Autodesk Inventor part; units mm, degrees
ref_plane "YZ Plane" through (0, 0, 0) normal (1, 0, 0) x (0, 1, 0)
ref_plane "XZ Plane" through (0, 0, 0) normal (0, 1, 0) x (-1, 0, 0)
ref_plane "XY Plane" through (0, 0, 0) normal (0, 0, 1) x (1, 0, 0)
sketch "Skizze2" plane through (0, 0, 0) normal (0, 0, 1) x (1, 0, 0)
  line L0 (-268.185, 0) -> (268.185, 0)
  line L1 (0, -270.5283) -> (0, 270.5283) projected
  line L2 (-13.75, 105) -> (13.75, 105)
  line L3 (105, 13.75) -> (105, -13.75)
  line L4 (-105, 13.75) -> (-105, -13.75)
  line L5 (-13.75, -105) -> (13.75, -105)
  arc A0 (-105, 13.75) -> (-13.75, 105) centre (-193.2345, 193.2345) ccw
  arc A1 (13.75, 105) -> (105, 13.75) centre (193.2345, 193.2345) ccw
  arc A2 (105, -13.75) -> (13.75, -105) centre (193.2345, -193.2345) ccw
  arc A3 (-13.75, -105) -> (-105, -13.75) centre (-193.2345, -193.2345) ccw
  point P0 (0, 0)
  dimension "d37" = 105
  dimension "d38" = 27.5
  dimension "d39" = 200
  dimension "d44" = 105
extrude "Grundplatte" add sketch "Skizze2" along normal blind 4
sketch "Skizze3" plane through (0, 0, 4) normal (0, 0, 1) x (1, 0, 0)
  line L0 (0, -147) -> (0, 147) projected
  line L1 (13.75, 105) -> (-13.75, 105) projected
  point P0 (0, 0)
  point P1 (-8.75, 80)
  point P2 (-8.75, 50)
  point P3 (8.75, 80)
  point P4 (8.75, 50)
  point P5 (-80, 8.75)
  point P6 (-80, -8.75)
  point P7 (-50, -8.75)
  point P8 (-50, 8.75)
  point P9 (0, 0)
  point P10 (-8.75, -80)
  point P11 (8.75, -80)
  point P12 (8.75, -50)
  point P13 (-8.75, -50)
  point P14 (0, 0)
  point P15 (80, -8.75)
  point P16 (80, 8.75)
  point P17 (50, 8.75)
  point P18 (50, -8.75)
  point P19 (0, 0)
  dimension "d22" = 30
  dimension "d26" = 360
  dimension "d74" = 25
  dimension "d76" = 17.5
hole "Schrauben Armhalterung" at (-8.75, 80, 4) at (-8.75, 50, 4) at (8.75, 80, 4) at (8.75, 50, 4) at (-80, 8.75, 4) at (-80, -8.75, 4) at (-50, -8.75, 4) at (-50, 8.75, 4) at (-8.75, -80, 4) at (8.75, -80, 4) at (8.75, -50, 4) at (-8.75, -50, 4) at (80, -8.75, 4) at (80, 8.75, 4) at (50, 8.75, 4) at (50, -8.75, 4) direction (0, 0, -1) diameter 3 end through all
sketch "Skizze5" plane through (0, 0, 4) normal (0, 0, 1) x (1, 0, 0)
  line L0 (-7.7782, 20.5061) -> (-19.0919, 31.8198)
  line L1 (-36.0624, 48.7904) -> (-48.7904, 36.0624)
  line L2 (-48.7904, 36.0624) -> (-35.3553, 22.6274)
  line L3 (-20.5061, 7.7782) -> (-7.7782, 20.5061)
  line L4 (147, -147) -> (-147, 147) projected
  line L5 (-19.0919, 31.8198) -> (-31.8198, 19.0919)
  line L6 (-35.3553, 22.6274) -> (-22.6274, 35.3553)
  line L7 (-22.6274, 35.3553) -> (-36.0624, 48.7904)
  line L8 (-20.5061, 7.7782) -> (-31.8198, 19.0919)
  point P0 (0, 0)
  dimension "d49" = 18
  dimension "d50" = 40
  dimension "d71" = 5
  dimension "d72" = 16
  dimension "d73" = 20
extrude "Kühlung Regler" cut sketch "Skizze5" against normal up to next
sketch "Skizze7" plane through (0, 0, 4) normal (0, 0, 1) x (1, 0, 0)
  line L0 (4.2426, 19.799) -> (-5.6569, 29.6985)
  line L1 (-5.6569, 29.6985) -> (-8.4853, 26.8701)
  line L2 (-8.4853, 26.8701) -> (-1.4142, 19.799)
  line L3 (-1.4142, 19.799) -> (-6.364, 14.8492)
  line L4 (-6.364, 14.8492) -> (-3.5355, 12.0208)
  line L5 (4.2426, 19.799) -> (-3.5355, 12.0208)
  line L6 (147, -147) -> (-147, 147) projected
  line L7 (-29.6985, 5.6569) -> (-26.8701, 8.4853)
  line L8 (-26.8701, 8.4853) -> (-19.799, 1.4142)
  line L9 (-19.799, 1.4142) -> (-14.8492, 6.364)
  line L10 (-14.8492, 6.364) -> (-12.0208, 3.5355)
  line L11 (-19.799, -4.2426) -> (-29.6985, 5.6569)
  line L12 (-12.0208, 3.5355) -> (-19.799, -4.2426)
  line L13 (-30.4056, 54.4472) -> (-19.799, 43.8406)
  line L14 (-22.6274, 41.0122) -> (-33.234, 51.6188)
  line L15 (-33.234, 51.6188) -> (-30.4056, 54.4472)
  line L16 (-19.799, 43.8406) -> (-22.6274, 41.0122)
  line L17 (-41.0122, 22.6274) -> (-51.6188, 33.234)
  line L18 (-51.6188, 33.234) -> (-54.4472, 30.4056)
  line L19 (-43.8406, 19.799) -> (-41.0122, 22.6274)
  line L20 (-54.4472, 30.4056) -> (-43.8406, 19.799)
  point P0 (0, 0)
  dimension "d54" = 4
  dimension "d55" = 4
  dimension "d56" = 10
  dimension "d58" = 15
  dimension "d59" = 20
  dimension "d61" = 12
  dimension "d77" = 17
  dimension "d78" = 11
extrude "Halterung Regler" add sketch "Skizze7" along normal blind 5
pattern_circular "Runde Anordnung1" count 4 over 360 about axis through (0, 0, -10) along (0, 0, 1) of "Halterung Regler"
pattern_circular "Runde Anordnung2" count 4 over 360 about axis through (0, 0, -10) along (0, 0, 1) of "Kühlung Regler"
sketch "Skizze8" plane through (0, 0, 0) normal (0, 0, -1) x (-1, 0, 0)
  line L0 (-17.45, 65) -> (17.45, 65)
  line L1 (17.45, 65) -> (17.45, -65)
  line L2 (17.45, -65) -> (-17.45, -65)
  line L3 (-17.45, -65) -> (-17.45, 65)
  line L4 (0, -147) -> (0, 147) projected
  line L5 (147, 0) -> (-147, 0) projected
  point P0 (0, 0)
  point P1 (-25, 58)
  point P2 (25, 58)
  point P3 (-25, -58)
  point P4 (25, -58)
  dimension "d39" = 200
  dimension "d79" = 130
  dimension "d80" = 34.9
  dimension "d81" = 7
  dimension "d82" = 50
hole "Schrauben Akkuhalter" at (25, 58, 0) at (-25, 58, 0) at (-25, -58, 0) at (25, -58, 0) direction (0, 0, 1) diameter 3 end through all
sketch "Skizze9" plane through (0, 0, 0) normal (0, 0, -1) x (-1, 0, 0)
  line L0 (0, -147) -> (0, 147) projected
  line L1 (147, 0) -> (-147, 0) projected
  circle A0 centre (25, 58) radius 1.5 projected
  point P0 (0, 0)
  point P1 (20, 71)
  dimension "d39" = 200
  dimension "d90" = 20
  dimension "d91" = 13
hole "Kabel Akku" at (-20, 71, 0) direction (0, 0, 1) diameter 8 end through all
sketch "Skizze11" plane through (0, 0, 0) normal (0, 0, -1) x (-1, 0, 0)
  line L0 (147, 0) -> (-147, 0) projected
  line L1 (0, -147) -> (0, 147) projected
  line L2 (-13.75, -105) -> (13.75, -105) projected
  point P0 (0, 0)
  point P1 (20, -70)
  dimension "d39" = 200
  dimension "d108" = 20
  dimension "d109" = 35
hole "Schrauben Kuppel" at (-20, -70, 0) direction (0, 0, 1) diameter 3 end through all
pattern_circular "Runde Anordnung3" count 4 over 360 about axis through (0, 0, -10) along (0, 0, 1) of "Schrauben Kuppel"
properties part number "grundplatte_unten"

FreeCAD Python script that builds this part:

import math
import FreeCAD as App
import Part
import Sketcher
Q = App.Units.Quantity


def add_polygon(sketch, points):
    """Adds a closed chain of lines whose ends are joined by coincident constraints."""
    first, n = sketch.GeometryCount, len(points)
    for a, b in zip(points, points[1:] + points[:1]):
        sketch.addGeometry(Part.LineSegment(App.Vector(*a, 0), App.Vector(*b, 0)), False)
    for i in range(n):
        sketch.addConstraint(Sketcher.Constraint("Coincident", first + i, 2, first + (i + 1) % n, 1))

doc = App.newDocument("Part")
body = doc.addObject("PartDesign::Body", "Body")

# Sketch on XY plane
sketch1 = body.newObject("Sketcher::SketchObject", "Sketch")
sketch1.AttachmentSupport = (doc.getObject("XY_Plane"), [""])
sketch1.MapMode = "FlatFace"
sketch1.addGeometry(Part.LineSegment(App.Vector(-105, 13.75, 0), App.Vector(-105, -13.75, 0)), False)
sketch1.addGeometry(Part.ArcOfCircle(Part.Circle(App.Vector(-193.2345, -193.2345, 0), App.Vector(0, 0, 1), 200.000032), math.radians(26.178711), math.radians(63.821289)), False)
sketch1.addGeometry(Part.LineSegment(App.Vector(-13.75, -105, 0), App.Vector(13.75, -105, 0)), False)
sketch1.addGeometry(Part.ArcOfCircle(Part.Circle(App.Vector(193.2345, -193.2345, 0), App.Vector(0, 0, 1), 200.000032), math.radians(116.178711), math.radians(153.821289)), False)
sketch1.addGeometry(Part.LineSegment(App.Vector(105, -13.75, 0), App.Vector(105, 13.75, 0)), False)
sketch1.addGeometry(Part.ArcOfCircle(Part.Circle(App.Vector(193.2345, 193.2345, 0), App.Vector(0, 0, 1), 200.000032), math.radians(-153.821289), math.radians(-116.178711)), False)
sketch1.addGeometry(Part.LineSegment(App.Vector(13.75, 105, 0), App.Vector(-13.75, 105, 0)), False)
sketch1.addGeometry(Part.ArcOfCircle(Part.Circle(App.Vector(-193.2345, 193.2345, 0), App.Vector(0, 0, 1), 200.000032), math.radians(-63.821289), math.radians(-26.178711)), False)
sketch1.addConstraint(Sketcher.Constraint("Coincident", 0, 2, 1, 2))
sketch1.addConstraint(Sketcher.Constraint("Coincident", 1, 1, 2, 1))
sketch1.addConstraint(Sketcher.Constraint("Coincident", 2, 2, 3, 2))
sketch1.addConstraint(Sketcher.Constraint("Coincident", 3, 1, 4, 1))
sketch1.addConstraint(Sketcher.Constraint("Coincident", 4, 2, 5, 2))
sketch1.addConstraint(Sketcher.Constraint("Coincident", 5, 1, 6, 1))
sketch1.addConstraint(Sketcher.Constraint("Coincident", 6, 2, 7, 2))
sketch1.addConstraint(Sketcher.Constraint("Coincident", 7, 1, 0, 1))
sketch1.addConstraint(Sketcher.Constraint("Vertical", 0))
sketch1.addConstraint(Sketcher.Constraint("Horizontal", 2))
sketch1.addConstraint(Sketcher.Constraint("Vertical", 4))
sketch1.addConstraint(Sketcher.Constraint("Horizontal", 6))
sketch1.addConstraint(Sketcher.Constraint("Equal", 1, 3))
sketch1.addConstraint(Sketcher.Constraint("Equal", 3, 5))
sketch1.addConstraint(Sketcher.Constraint("Equal", 5, 7))
sketch1.addConstraint(Sketcher.Constraint("Symmetric", 1, 3, 5, 3, -1, 1))
sketch1.addConstraint(Sketcher.Constraint("Symmetric", 3, 3, 7, 3, -1, 1))
sketch1.addConstraint(Sketcher.Constraint("Symmetric", 1, 3, 3, 3, -2))
sketch1.addConstraint(Sketcher.Constraint("Horizontal", 0, 2, 3, 1))
sketch1.addConstraint(Sketcher.Constraint("Vertical", 2, 2, 5, 1))
sketch1.addConstraint(Sketcher.Constraint("Equal", 6, 0))
sketch1.addConstraint(Sketcher.Constraint("Radius", 1, Q("200 mm")))
sketch1.addConstraint(Sketcher.Constraint("DistanceX", 2, 1, 2, 2, Q("27.5 mm")))
sketch1.addConstraint(Sketcher.Constraint("DistanceX", 0, 2, -1, 1, Q("105 mm")))
sketch1.addConstraint(Sketcher.Constraint("DistanceY", 1, 1, -1, 1, Q("105 mm")))
pad1 = body.newObject("PartDesign::Pad", "Pad")
pad1.Profile = sketch1
pad1.Length = 4

# Sketch on XY plane
sketch2 = body.newObject("Sketcher::SketchObject", "Sketch001")
sketch2.AttachmentSupport = (doc.getObject("XY_Plane"), [""])
sketch2.MapMode = "FlatFace"
sketch2.AttachmentOffset = App.Placement(App.Vector(0, 0, 4), App.Rotation())
sketch2.addGeometry(Part.Circle(App.Vector(-8.75, 80, 0), App.Vector(0, 0, 1), 1.5), False)
sketch2.addGeometry(Part.Circle(App.Vector(-8.75, 50, 0), App.Vector(0, 0, 1), 1.5), False)
sketch2.addGeometry(Part.Circle(App.Vector(8.75, 80, 0), App.Vector(0, 0, 1), 1.5), False)
sketch2.addGeometry(Part.Circle(App.Vector(8.75, 50, 0), App.Vector(0, 0, 1), 1.5), False)
sketch2.addGeometry(Part.Circle(App.Vector(-80, 8.75, 0), App.Vector(0, 0, 1), 1.5), False)
sketch2.addGeometry(Part.Circle(App.Vector(-80, -8.75, 0), App.Vector(0, 0, 1), 1.5), False)
sketch2.addGeometry(Part.Circle(App.Vector(-50, -8.75, 0), App.Vector(0, 0, 1), 1.5), False)
sketch2.addGeometry(Part.Circle(App.Vector(-50, 8.75, 0), App.Vector(0, 0, 1), 1.5), False)
sketch2.addGeometry(Part.Circle(App.Vector(-8.75, -80, 0), App.Vector(0, 0, 1), 1.5), False)
sketch2.addGeometry(Part.Circle(App.Vector(8.75, -80, 0), App.Vector(0, 0, 1), 1.5), False)
sketch2.addGeometry(Part.Circle(App.Vector(8.75, -50, 0), App.Vector(0, 0, 1), 1.5), False)
sketch2.addGeometry(Part.Circle(App.Vector(-8.75, -50, 0), App.Vector(0, 0, 1), 1.5), False)
sketch2.addGeometry(Part.Circle(App.Vector(80, -8.75, 0), App.Vector(0, 0, 1), 1.5), False)
sketch2.addGeometry(Part.Circle(App.Vector(80, 8.75, 0), App.Vector(0, 0, 1), 1.5), False)
sketch2.addGeometry(Part.Circle(App.Vector(50, 8.75, 0), App.Vector(0, 0, 1), 1.5), False)
sketch2.addGeometry(Part.Circle(App.Vector(50, -8.75, 0), App.Vector(0, 0, 1), 1.5), False)
sketch2.addConstraint(Sketcher.Constraint("Equal", 0, 1))
sketch2.addConstraint(Sketcher.Constraint("Equal", 1, 2))
sketch2.addConstraint(Sketcher.Constraint("Equal", 2, 3))
sketch2.addConstraint(Sketcher.Constraint("Equal", 3, 4))
sketch2.addConstraint(Sketcher.Constraint("Equal", 4, 5))
sketch2.addConstraint(Sketcher.Constraint("Equal", 5, 6))
sketch2.addConstraint(Sketcher.Constraint("Equal", 6, 7))
sketch2.addConstraint(Sketcher.Constraint("Equal", 7, 8))
sketch2.addConstraint(Sketcher.Constraint("Equal", 8, 9))
sketch2.addConstraint(Sketcher.Constraint("Equal", 9, 10))
sketch2.addConstraint(Sketcher.Constraint("Equal", 10, 11))
sketch2.addConstraint(Sketcher.Constraint("Equal", 11, 12))
sketch2.addConstraint(Sketcher.Constraint("Equal", 12, 13))
sketch2.addConstraint(Sketcher.Constraint("Equal", 13, 14))
sketch2.addConstraint(Sketcher.Constraint("Equal", 14, 15))
sketch2.addConstraint(Sketcher.Constraint("Symmetric", 2, 3, 8, 3, -1, 1))
sketch2.addConstraint(Sketcher.Constraint("Symmetric", 0, 3, 9, 3, -1, 1))
sketch2.addConstraint(Sketcher.Constraint("Symmetric", 1, 3, 10, 3, -1, 1))
sketch2.addConstraint(Sketcher.Constraint("Symmetric", 3, 3, 11, 3, -1, 1))
sketch2.addConstraint(Sketcher.Constraint("Symmetric", 4, 3, 12, 3, -1, 1))
sketch2.addConstraint(Sketcher.Constraint("Symmetric", 5, 3, 13, 3, -1, 1))
sketch2.addConstraint(Sketcher.Constraint("Symmetric", 6, 3, 14, 3, -1, 1))
sketch2.addConstraint(Sketcher.Constraint("Symmetric", 7, 3, 15, 3, -1, 1))
sketch2.addConstraint(Sketcher.Constraint("Symmetric", 0, 3, 2, 3, -2))
sketch2.addConstraint(Sketcher.Constraint("Symmetric", 1, 3, 3, 3, -2))
sketch2.addConstraint(Sketcher.Constraint("Symmetric", 5, 3, 12, 3, -2))
sketch2.addConstraint(Sketcher.Constraint("Symmetric", 7, 3, 14, 3, -2))
sketch2.addConstraint(Sketcher.Constraint("Horizontal", 5, 3, 6, 3))
sketch2.addConstraint(Sketcher.Constraint("Vertical", 0, 3, 1, 3))
sketch2.addConstraint(Sketcher.Constraint("Diameter", 0, Q("3 mm")))
sketch2.addConstraint(Sketcher.Constraint("DistanceY", -1, 1, 0, 3, Q("80 mm")))
sketch2.addConstraint(Sketcher.Constraint("DistanceY", -1, 1, 1, 3, Q("50 mm")))
sketch2.addConstraint(Sketcher.Constraint("DistanceX", 4, 3, -1, 1, Q("80 mm")))
sketch2.addConstraint(Sketcher.Constraint("DistanceX", 6, 3, -1, 1, Q("50 mm")))
sketch2.addConstraint(Sketcher.Constraint("DistanceX", 0, 3, 2, 3, Q("17.5 mm")))
sketch2.addConstraint(Sketcher.Constraint("DistanceY", 5, 3, 4, 3, Q("17.5 mm")))
doc.recompute()
hole = body.newObject("PartDesign::Hole", "Hole")
hole.Profile = sketch2
hole.ThreadType = "None"
hole.Diameter = 3
hole.DepthType = "ThroughAll"

# Sketch on XY plane
sketch3 = body.newObject("Sketcher::SketchObject", "Sketch002")
sketch3.AttachmentSupport = (doc.getObject("XY_Plane"), [""])
sketch3.MapMode = "FlatFace"
sketch3.AttachmentOffset = App.Placement(App.Vector(0, 0, 4), App.Rotation())
add_polygon(sketch3, [(-7.7782, 20.5061), (-19.0919, 31.8198), (-31.8198, 19.0919), (-20.5061, 7.7782)])  # lines 0-3
add_polygon(sketch3, [(-35.3553, 22.6274), (-22.6274, 35.3553), (-36.0624, 48.7904), (-48.7904, 36.0624)])  # lines 4-7
sketch3.addConstraint(Sketcher.Constraint("Perpendicular", 0, 1))
sketch3.addConstraint(Sketcher.Constraint("Perpendicular", 1, 2))
sketch3.addConstraint(Sketcher.Constraint("Perpendicular", 2, 3))
sketch3.addConstraint(Sketcher.Constraint("Parallel", 3, 4))
sketch3.addConstraint(Sketcher.Constraint("Perpendicular", 4, 5))
sketch3.addConstraint(Sketcher.Constraint("Perpendicular", 5, 6))
sketch3.addConstraint(Sketcher.Constraint("Perpendicular", 6, 7))
sketch3.addConstraint(Sketcher.Constraint("Equal", 3, 4))
sketch3.addConstraint(Sketcher.Constraint("Distance", 0, Q("16 mm")))
sketch3.addConstraint(Sketcher.Constraint("Distance", 1, Q("18 mm")))
sketch3.addConstraint(Sketcher.Constraint("Angle", 0, Q("135 deg")))
sketch3.addConstraint(Sketcher.Constraint("Distance", 5, Q("19 mm")))
sketch3.addConstraint(Sketcher.Constraint("DistanceX", 0, 2, -1, 1, Q("19.092 mm")))
sketch3.addConstraint(Sketcher.Constraint("DistanceY", -1, 1, 1, 2, Q("19.092 mm")))
sketch3.addConstraint(Sketcher.Constraint("DistanceY", 2, 2, 4, 2, Q("27.577 mm")))
sketch3.addConstraint(Sketcher.Constraint("DistanceX", 4, 2, -1, 1, Q("22.6274 mm")))
pocket1 = body.newObject("PartDesign::Pocket", "Pocket")
pocket1.Profile = sketch3
pocket1.Type = "UpToFirst"

# Sketch on XY plane
sketch4 = body.newObject("Sketcher::SketchObject", "Sketch003")
sketch4.AttachmentSupport = (doc.getObject("XY_Plane"), [""])
sketch4.MapMode = "FlatFace"
sketch4.AttachmentOffset = App.Placement(App.Vector(0, 0, 4), App.Rotation())
add_polygon(sketch4, [(-3.5355, 12.0208), (4.2426, 19.799), (-5.6569, 29.6985), (-8.4853, 26.8701), (-1.4142, 19.799), (-6.364, 14.8492)])  # lines 0-5
add_polygon(sketch4, [(-26.8701, 8.4853), (-29.6985, 5.6569), (-19.799, -4.2426), (-12.0208, 3.5355), (-14.8492, 6.364), (-19.799, 1.4142)])  # lines 6-11
add_polygon(sketch4, [(-19.799, 43.8406), (-30.4056, 54.4472), (-33.234, 51.6188), (-22.6274, 41.0122)])  # lines 12-15
add_polygon(sketch4, [(-43.8406, 19.799), (-41.0122, 22.6274), (-51.6188, 33.234), (-54.4472, 30.4056)])  # lines 16-19
sketch4.addConstraint(Sketcher.Constraint("Perpendicular", 0, 1))
sketch4.addConstraint(Sketcher.Constraint("Perpendicular", 1, 2))
sketch4.addConstraint(Sketcher.Constraint("Perpendicular", 2, 3))
sketch4.addConstraint(Sketcher.Constraint("Perpendicular", 3, 4))
sketch4.addConstraint(Sketcher.Constraint("Perpendicular", 4, 5))
sketch4.addConstraint(Sketcher.Constraint("Perpendicular", 5, 6))
sketch4.addConstraint(Sketcher.Constraint("Perpendicular", 6, 7))
sketch4.addConstraint(Sketcher.Constraint("Perpendicular", 7, 8))
sketch4.addConstraint(Sketcher.Constraint("Perpendicular", 8, 9))
sketch4.addConstraint(Sketcher.Constraint("Perpendicular", 9, 10))
sketch4.addConstraint(Sketcher.Constraint("Perpendicular", 10, 11))
sketch4.addConstraint(Sketcher.Constraint("Parallel", 11, 12))
sketch4.addConstraint(Sketcher.Constraint("Perpendicular", 12, 13))
sketch4.addConstraint(Sketcher.Constraint("Perpendicular", 13, 14))
sketch4.addConstraint(Sketcher.Constraint("Perpendicular", 14, 15))
sketch4.addConstraint(Sketcher.Constraint("Parallel", 15, 16))
sketch4.addConstraint(Sketcher.Constraint("Perpendicular", 16, 17))
sketch4.addConstraint(Sketcher.Constraint("Perpendicular", 17, 18))
sketch4.addConstraint(Sketcher.Constraint("Perpendicular", 18, 19))
sketch4.addConstraint(Sketcher.Constraint("Horizontal", 0, 2, 3, 2))
sketch4.addConstraint(Sketcher.Constraint("Horizontal", 3, 2, 19, 2))
sketch4.addConstraint(Sketcher.Constraint("Vertical", 7, 2, 10, 2))
sketch4.addConstraint(Sketcher.Constraint("Vertical", 10, 2, 15, 2))
sketch4.addConstraint(Sketcher.Constraint("Equal", 2, 5))
sketch4.addConstraint(Sketcher.Constraint("Equal", 5, 6))
sketch4.addConstraint(Sketcher.Constraint("Equal", 1, 7))
sketch4.addConstraint(Sketcher.Constraint("Equal", 0, 8))
sketch4.addConstraint(Sketcher.Constraint("Equal", 9, 13))
sketch4.addConstraint(Sketcher.Constraint("Equal", 15, 16))
sketch4.addConstraint(Sketcher.Constraint("Equal", 14, 17))
sketch4.addConstraint(Sketcher.Constraint("Distance", 0, Q("11 mm")))
sketch4.addConstraint(Sketcher.Constraint("Distance", 2, Q("4 mm")))
sketch4.addConstraint(Sketcher.Constraint("Distance", 3, Q("10 mm")))
sketch4.addConstraint(Sketcher.Constraint("Distance", 12, Q("15 mm")))
sketch4.addConstraint(Sketcher.Constraint("DistanceY", -1, 1, 2, 2, Q("26.87 mm")))
sketch4.addConstraint(Sketcher.Constraint("DistanceX", 11, 2, -1, 1, Q("26.87 mm")))
sketch4.addConstraint(Sketcher.Constraint("DistanceX", 1, 2, -1, 1, Q("5.657 mm")))
sketch4.addConstraint(Sketcher.Constraint("DistanceY", -1, 1, 6, 2, Q("5.657 mm")))
sketch4.addConstraint(Sketcher.Constraint("DistanceY", 2, 2, 12, 2, Q("27.577 mm")))
sketch4.addConstraint(Sketcher.Constraint("DistanceX", 16, 2, 11, 2, Q("14.142 mm")))
pad2 = body.newObject("PartDesign::Pad", "Pad001")
pad2.Profile = sketch4
pad2.Length = 5
doc.recompute()

polarpattern = body.newObject("PartDesign::PolarPattern", "PolarPattern")
polarpattern.Originals = [pad2]
polarpattern.Axis = (doc.getObject("Z_Axis"), [""])
polarpattern.Angle = 360
polarpattern.Occurrences = 4
body.Tip = polarpattern
doc.recompute()

polarpattern2 = body.newObject("PartDesign::PolarPattern", "PolarPattern001")
polarpattern2.Originals = [pocket1]
polarpattern2.Axis = (doc.getObject("Z_Axis"), [""])
polarpattern2.Angle = 360
polarpattern2.Occurrences = 4
body.Tip = polarpattern2

# Sketch on XY plane
sketch5 = body.newObject("Sketcher::SketchObject", "Sketch004")
sketch5.AttachmentSupport = (doc.getObject("XY_Plane"), [""])
sketch5.MapMode = "FlatFace"
sketch5.addGeometry(Part.Circle(App.Vector(25, 58, 0), App.Vector(0, 0, 1), 1.5), False)
sketch5.addGeometry(Part.Circle(App.Vector(-25, 58, 0), App.Vector(0, 0, 1), 1.5), False)
sketch5.addGeometry(Part.Circle(App.Vector(-25, -58, 0), App.Vector(0, 0, 1), 1.5), False)
sketch5.addGeometry(Part.Circle(App.Vector(25, -58, 0), App.Vector(0, 0, 1), 1.5), False)
sketch5.addConstraint(Sketcher.Constraint("Equal", 0, 1))
sketch5.addConstraint(Sketcher.Constraint("Equal", 1, 2))
sketch5.addConstraint(Sketcher.Constraint("Equal", 2, 3))
sketch5.addConstraint(Sketcher.Constraint("Symmetric", 0, 3, 2, 3, -1, 1))
sketch5.addConstraint(Sketcher.Constraint("Symmetric", 1, 3, 3, 3, -1, 1))
sketch5.addConstraint(Sketcher.Constraint("Symmetric", 0, 3, 1, 3, -2))
sketch5.addConstraint(Sketcher.Constraint("Diameter", 0, Q("3 mm")))
sketch5.addConstraint(Sketcher.Constraint("DistanceX", -1, 1, 0, 3, Q("25 mm")))
sketch5.addConstraint(Sketcher.Constraint("DistanceY", -1, 1, 0, 3, Q("58 mm")))
doc.recompute()
hole2 = body.newObject("PartDesign::Hole", "Hole001")
hole2.Profile = sketch5
hole2.ThreadType = "None"
hole2.Diameter = 3
hole2.DepthType = "ThroughAll"
hole2.Reversed = True

# Sketch on XY plane
sketch6 = body.newObject("Sketcher::SketchObject", "Sketch005")
sketch6.AttachmentSupport = (doc.getObject("XY_Plane"), [""])
sketch6.MapMode = "FlatFace"
sketch6.addGeometry(Part.Circle(App.Vector(-20, 71, 0), App.Vector(0, 0, 1), 4), False)
sketch6.addConstraint(Sketcher.Constraint("Diameter", 0, Q("8 mm")))
sketch6.addConstraint(Sketcher.Constraint("DistanceX", 0, 3, -1, 1, Q("20 mm")))
sketch6.addConstraint(Sketcher.Constraint("DistanceY", -1, 1, 0, 3, Q("71 mm")))
doc.recompute()
hole3 = body.newObject("PartDesign::Hole", "Hole002")
hole3.Profile = sketch6
hole3.ThreadType = "None"
hole3.Diameter = 8
hole3.DepthType = "ThroughAll"
hole3.Reversed = True

# Sketch on XY plane
sketch7 = body.newObject("Sketcher::SketchObject", "Sketch006")
sketch7.AttachmentSupport = (doc.getObject("XY_Plane"), [""])
sketch7.MapMode = "FlatFace"
sketch7.addGeometry(Part.Circle(App.Vector(-20, -70, 0), App.Vector(0, 0, 1), 1.5), False)
sketch7.addConstraint(Sketcher.Constraint("Diameter", 0, Q("3 mm")))
sketch7.addConstraint(Sketcher.Constraint("DistanceX", 0, 3, -1, 1, Q("20 mm")))
sketch7.addConstraint(Sketcher.Constraint("DistanceY", 0, 3, -1, 1, Q("70 mm")))
doc.recompute()
hole4 = body.newObject("PartDesign::Hole", "Hole003")
hole4.Profile = sketch7
hole4.ThreadType = "None"
hole4.Diameter = 3
hole4.DepthType = "ThroughAll"
hole4.Reversed = True
doc.recompute()

polarpattern3 = body.newObject("PartDesign::PolarPattern", "PolarPattern002")
polarpattern3.Originals = [hole4]
polarpattern3.Axis = (doc.getObject("Z_Axis"), [""])
polarpattern3.Angle = 360
polarpattern3.Occurrences = 4
body.Tip = polarpattern3

doc.recompute()
